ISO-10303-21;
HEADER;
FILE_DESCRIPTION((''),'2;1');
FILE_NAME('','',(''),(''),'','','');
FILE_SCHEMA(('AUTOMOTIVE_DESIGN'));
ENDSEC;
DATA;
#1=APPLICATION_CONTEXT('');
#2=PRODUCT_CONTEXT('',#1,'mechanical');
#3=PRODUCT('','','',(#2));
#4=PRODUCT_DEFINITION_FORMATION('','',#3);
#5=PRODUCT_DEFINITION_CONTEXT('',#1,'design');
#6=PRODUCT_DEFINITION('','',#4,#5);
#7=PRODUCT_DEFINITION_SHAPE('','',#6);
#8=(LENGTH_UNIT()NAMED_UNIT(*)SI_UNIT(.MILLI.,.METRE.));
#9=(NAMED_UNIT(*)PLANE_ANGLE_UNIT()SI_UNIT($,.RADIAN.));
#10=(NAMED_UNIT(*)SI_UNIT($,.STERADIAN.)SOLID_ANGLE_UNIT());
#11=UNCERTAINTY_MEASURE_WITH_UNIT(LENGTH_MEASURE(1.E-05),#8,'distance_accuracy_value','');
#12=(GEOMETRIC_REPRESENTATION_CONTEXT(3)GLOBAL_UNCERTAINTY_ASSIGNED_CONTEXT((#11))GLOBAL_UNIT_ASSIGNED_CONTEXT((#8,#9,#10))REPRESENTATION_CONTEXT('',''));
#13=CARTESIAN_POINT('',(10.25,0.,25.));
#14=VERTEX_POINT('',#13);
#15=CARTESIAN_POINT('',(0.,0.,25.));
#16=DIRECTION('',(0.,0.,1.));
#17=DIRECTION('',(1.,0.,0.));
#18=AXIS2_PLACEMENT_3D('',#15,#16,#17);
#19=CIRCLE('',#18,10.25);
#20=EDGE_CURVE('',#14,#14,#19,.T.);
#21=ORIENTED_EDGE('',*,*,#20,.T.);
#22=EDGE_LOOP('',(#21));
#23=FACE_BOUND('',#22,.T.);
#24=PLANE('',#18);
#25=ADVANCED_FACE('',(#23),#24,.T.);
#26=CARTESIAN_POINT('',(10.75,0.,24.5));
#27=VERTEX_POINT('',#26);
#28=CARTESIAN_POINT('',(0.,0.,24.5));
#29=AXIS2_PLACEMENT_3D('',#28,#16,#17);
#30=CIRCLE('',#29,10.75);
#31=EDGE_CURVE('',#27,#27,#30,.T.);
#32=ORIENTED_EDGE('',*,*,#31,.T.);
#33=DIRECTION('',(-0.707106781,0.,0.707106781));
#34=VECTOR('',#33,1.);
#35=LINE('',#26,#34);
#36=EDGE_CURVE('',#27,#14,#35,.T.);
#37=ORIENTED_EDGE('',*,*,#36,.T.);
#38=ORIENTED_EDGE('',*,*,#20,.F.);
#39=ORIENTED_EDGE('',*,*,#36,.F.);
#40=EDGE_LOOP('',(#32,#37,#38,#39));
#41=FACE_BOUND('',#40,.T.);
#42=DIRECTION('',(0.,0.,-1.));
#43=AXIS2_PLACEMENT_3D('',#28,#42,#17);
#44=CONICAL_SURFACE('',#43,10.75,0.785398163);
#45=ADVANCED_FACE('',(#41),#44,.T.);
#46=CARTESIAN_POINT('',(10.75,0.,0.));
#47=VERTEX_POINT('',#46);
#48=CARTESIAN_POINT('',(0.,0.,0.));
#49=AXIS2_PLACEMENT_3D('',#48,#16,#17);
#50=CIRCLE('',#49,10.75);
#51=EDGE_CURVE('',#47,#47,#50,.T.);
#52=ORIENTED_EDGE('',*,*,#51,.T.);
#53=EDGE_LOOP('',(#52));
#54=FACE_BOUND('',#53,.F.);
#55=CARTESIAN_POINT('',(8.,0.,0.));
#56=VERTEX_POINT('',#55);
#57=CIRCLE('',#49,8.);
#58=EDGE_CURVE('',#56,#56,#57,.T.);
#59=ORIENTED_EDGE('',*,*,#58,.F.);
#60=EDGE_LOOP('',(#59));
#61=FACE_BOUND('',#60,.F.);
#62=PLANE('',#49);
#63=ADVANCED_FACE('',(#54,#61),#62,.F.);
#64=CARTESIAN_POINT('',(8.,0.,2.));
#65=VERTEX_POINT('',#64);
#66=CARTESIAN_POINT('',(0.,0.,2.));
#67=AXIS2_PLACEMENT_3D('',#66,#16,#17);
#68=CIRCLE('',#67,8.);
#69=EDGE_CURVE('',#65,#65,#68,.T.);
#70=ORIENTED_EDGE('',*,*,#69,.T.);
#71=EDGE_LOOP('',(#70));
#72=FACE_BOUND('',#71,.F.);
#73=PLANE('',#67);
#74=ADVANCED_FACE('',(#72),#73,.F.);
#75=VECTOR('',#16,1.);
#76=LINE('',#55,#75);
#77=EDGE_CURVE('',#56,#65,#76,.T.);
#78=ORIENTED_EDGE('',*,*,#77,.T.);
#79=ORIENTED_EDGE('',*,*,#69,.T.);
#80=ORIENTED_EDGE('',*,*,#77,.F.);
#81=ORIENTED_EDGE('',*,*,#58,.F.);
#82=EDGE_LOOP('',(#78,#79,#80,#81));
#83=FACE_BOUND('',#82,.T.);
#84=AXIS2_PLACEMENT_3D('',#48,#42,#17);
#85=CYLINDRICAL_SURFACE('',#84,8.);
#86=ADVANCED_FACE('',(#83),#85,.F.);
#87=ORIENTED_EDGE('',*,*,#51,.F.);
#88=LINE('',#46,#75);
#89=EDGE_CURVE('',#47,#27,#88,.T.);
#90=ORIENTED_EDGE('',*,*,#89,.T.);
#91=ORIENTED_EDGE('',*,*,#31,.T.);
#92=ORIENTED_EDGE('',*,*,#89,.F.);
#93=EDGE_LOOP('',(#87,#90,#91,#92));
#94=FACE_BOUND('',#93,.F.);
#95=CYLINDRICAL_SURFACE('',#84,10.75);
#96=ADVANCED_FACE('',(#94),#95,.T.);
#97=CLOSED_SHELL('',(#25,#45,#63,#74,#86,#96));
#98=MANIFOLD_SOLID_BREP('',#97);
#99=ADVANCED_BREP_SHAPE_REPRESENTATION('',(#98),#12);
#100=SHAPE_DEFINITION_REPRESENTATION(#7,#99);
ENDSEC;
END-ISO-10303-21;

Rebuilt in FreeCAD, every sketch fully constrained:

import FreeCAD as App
import Part
import Sketcher


def edges_at(feature, points):
    """Names of the edges that pass closest to the given points."""
    edges = feature.Shape.Edges
    near = lambda p: min(range(len(edges)), key=lambda i: edges[i].distToShape(Part.Vertex(*p))[0])
    return sorted({f"Edge{near(p) + 1}" for p in points})

doc = App.newDocument("Part")
params = doc.addObject("Spreadsheet::Sheet", "Params")
for row, (alias, value) in enumerate([
    ("sketch1_diameter", "21.5 mm"),
    ("pad1_length", "25 mm"),
    ("sketch2_diameter", "16 mm"),
    ("pocket1_length", "2 mm"),
    ("chamfer_size", "0.5 mm"),
], start=1):
    params.set(f"A{row}", alias)
    params.set(f"B{row}", "=" + value)
    params.setAlias(f"B{row}", alias)

body = doc.addObject("PartDesign::Body", "Body")

# Sketch on XY plane
sketch1 = body.newObject("Sketcher::SketchObject", "Sketch")
sketch1.AttachmentSupport = (doc.getObject("XY_Plane"), [""])
sketch1.MapMode = "FlatFace"
sketch1.addGeometry(Part.Circle(App.Vector(0, 0, 0), App.Vector(0, 0, 1), 11), False)
sketch1.addConstraint([
    Sketcher.Constraint("Coincident", 0, 3, -1, 1),
    Sketcher.Constraint("Diameter", 0, 21.5),
])
sketch1.setExpression("Constraints[1]", "Params.sketch1_diameter")
pad1 = body.newObject("PartDesign::Pad", "Pad")
pad1.Profile = sketch1
pad1.setExpression("Length", "Params.pad1_length")

# Sketch on XY plane
sketch2 = body.newObject("Sketcher::SketchObject", "Sketch001")
sketch2.AttachmentSupport = (doc.getObject("XY_Plane"), [""])
sketch2.MapMode = "FlatFace"
sketch2.addGeometry(Part.Circle(App.Vector(0, 0, 0), App.Vector(0, 0, 1), 8), False)
sketch2.addConstraint([
    Sketcher.Constraint("Coincident", 0, 3, -1, 1),
    Sketcher.Constraint("Diameter", 0, 16.0),
])
sketch2.setExpression("Constraints[1]", "Params.sketch2_diameter")
pocket1 = body.newObject("PartDesign::Pocket", "Pocket")
pocket1.Profile = sketch2
pocket1.setExpression("Length", "Params.pocket1_length")
pocket1.Reversed = True
doc.recompute()

chamfer = body.newObject("PartDesign::Chamfer", "Chamfer")
chamfer.Base = (pocket1, edges_at(pocket1, [(-10.75, 0, 25)]))
chamfer.setExpression("Size", "Params.chamfer_size")

doc.recompute()
